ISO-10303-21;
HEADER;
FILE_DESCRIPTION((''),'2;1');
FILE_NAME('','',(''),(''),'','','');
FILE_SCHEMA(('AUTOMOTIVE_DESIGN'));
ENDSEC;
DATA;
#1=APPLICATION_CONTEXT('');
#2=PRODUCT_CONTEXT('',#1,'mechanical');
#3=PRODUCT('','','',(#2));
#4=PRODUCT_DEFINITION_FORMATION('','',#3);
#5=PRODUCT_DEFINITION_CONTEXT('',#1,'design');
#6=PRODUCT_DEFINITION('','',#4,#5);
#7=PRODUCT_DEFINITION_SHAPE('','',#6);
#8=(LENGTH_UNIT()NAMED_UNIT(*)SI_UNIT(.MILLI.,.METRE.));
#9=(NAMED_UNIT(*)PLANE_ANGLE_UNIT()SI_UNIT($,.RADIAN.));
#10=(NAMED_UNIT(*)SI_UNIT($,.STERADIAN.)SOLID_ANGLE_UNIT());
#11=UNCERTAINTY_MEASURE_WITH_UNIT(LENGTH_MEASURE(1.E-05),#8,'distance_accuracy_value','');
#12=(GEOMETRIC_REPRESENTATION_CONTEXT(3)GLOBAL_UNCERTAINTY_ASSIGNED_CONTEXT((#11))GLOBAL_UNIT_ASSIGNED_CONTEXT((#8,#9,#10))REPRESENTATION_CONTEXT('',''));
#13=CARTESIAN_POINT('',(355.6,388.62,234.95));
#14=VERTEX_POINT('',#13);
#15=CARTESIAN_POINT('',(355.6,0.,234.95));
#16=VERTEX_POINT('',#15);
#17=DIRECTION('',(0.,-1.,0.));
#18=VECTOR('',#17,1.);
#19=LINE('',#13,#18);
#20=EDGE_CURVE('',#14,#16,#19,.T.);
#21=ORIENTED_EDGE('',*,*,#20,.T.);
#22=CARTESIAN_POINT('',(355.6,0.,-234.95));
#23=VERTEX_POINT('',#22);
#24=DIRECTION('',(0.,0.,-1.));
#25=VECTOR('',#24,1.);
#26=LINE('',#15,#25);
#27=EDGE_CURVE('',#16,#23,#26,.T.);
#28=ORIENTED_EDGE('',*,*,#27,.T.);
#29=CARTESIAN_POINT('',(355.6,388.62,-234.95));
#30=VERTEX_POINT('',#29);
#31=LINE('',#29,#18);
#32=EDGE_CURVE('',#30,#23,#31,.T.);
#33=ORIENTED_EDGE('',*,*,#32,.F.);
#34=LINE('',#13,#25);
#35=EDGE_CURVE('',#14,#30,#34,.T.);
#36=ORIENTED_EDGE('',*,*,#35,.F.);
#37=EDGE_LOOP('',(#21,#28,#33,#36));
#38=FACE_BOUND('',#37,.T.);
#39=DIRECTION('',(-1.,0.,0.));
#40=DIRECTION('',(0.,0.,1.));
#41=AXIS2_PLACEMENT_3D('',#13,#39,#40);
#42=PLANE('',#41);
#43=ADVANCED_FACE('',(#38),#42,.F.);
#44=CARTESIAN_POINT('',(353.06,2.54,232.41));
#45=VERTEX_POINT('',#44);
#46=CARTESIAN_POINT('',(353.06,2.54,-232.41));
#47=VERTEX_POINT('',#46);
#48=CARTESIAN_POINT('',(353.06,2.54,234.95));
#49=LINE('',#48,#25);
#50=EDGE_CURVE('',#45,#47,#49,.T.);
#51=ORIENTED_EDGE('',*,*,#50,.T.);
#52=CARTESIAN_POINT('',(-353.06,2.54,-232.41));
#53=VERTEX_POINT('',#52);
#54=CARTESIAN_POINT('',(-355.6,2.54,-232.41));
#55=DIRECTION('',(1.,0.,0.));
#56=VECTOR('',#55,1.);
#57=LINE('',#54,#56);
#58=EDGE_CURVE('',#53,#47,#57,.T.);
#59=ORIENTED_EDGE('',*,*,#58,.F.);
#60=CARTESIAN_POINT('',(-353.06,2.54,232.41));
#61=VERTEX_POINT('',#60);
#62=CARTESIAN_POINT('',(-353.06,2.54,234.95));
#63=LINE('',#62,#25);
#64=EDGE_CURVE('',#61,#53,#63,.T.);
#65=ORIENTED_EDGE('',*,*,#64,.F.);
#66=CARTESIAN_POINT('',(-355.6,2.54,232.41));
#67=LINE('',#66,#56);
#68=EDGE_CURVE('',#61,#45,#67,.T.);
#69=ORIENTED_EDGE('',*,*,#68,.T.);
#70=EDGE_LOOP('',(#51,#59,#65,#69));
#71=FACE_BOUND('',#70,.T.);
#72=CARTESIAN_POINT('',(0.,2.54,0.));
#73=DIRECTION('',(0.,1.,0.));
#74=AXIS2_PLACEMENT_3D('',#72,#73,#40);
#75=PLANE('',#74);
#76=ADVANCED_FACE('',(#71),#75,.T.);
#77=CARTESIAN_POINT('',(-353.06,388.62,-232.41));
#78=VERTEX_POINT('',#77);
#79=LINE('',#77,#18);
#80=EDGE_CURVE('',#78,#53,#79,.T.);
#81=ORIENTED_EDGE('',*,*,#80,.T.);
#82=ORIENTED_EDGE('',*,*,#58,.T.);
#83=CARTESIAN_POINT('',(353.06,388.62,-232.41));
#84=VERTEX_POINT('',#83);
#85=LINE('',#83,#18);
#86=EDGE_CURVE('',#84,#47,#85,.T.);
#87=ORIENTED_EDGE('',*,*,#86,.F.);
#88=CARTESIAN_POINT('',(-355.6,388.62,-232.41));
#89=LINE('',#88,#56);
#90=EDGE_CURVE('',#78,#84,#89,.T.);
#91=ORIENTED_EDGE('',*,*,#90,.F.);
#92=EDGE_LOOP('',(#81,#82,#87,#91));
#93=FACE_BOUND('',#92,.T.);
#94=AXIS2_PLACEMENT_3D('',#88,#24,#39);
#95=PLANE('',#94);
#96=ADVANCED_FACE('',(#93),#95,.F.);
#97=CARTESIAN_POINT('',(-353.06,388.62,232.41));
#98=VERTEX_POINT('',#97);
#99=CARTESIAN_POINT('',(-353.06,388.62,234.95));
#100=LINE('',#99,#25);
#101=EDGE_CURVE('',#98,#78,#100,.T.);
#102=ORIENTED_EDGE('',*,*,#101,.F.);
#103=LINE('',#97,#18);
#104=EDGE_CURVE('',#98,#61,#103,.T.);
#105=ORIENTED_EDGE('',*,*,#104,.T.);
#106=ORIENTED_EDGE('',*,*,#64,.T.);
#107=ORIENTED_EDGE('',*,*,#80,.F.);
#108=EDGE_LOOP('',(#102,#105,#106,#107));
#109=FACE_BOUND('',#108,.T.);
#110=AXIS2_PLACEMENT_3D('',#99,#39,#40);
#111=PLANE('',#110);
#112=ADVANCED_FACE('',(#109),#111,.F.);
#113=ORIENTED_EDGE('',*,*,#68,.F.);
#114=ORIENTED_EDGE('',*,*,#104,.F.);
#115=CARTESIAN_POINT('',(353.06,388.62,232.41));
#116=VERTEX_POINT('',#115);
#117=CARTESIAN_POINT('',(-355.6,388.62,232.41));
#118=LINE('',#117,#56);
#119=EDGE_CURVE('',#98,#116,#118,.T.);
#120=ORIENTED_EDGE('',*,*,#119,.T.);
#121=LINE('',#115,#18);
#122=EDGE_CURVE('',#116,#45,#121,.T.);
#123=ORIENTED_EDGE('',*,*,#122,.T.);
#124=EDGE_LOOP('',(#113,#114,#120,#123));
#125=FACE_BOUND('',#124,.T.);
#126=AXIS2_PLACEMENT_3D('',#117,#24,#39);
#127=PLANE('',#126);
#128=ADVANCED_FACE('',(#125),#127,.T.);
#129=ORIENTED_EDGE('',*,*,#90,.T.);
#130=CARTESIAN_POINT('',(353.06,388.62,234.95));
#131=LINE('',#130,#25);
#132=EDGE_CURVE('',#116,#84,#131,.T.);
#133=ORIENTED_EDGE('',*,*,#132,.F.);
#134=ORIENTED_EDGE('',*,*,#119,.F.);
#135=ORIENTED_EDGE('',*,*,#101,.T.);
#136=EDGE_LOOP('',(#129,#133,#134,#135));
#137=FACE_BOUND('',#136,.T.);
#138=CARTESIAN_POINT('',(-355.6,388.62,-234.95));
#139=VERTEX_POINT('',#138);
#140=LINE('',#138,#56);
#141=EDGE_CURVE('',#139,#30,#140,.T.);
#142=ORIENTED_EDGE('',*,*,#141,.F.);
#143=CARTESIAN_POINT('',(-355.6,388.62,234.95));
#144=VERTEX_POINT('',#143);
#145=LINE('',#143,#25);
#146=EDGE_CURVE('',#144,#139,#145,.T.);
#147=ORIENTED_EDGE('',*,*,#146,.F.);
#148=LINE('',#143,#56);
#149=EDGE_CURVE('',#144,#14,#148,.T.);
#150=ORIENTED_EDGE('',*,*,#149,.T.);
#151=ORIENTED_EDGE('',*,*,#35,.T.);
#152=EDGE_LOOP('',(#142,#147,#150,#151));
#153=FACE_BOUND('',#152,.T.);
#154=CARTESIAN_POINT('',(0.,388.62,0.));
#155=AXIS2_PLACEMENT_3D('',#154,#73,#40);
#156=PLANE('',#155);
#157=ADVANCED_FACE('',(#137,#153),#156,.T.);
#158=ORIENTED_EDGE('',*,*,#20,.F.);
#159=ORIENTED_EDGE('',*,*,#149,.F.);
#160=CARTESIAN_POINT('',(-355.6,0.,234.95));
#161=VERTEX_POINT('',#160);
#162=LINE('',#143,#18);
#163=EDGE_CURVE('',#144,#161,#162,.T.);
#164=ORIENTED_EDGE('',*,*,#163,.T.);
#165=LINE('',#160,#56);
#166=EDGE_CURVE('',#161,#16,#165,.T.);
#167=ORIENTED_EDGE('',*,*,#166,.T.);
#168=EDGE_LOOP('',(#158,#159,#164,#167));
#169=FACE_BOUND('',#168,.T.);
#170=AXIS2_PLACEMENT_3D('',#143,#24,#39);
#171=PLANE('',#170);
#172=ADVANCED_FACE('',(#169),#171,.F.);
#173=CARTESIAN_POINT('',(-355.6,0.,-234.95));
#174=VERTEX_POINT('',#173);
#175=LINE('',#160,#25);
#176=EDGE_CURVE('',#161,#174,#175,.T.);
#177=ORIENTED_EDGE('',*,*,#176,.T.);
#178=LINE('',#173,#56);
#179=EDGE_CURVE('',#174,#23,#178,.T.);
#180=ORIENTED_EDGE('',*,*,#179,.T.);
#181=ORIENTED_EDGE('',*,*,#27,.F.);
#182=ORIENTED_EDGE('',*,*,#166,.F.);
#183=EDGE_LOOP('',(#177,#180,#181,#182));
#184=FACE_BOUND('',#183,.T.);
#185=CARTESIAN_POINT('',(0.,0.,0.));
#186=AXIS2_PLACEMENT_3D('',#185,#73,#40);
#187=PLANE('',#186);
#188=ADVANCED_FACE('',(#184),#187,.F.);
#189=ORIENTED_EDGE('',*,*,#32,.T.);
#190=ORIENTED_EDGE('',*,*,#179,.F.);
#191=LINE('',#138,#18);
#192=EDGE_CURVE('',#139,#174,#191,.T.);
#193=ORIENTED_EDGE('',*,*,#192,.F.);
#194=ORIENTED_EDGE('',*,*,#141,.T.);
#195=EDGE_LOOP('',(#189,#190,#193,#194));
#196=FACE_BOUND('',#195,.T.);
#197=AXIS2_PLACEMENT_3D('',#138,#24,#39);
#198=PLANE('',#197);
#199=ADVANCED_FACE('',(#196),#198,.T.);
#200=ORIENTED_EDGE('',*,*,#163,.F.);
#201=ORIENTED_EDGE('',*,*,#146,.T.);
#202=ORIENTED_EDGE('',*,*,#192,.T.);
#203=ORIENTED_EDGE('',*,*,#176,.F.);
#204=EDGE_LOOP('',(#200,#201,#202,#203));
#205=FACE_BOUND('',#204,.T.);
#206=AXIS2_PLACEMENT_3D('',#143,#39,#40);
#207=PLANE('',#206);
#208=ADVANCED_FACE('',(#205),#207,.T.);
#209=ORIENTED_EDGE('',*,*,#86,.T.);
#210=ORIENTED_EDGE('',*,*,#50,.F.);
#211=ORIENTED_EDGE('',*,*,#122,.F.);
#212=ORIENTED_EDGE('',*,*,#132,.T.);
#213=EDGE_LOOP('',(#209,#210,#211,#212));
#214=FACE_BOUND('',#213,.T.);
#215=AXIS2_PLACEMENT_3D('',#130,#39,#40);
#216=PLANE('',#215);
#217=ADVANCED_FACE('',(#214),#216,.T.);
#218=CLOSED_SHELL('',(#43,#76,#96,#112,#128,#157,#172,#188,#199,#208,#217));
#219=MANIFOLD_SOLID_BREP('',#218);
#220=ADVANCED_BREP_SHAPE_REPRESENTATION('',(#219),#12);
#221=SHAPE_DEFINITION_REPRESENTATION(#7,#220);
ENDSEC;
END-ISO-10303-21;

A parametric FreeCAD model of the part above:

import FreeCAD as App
import Part
import Sketcher
from FreeCAD import Vector
Q = App.Units.Quantity


def faces_at(feature, points):
    """Names of the faces that lie closest to the given points."""
    faces = feature.Shape.Faces
    near = lambda p: min(range(len(faces)), key=lambda i: faces[i].distToShape(Part.Vertex(*p))[0])
    return sorted({f"Face{near(p) + 1}" for p in points})


def add_polygon(sketch, points):
    """Adds a closed chain of lines whose ends are joined by coincident constraints."""
    first, n = sketch.GeometryCount, len(points)
    for a, b in zip(points, points[1:] + points[:1]):
        sketch.addGeometry(Part.LineSegment(App.Vector(*a, 0), App.Vector(*b, 0)), False)
    for i in range(n):
        sketch.addConstraint(Sketcher.Constraint("Coincident", first + i, 2, first + (i + 1) % n, 1))

doc = App.newDocument("Part")
body = doc.addObject("PartDesign::Body", "Body")

# Sketch on XZ plane
sketch1 = body.newObject("Sketcher::SketchObject", "Sketch")
sketch1.AttachmentSupport = (doc.getObject("XZ_Plane"), [""])
sketch1.MapMode = "FlatFace"
add_polygon(sketch1, [(-356, -235), (-356, 235), (356, 235), (356, -235)])  # lines 0-3
sketch1.addConstraint(Sketcher.Constraint("Vertical", 0))
sketch1.addConstraint(Sketcher.Constraint("Horizontal", 1))
sketch1.addConstraint(Sketcher.Constraint("Vertical", 2))
sketch1.addConstraint(Sketcher.Constraint("Horizontal", 3))
sketch1.addConstraint(Sketcher.Constraint("Symmetric", 0, 2, 2, 2, -1, 1))
sketch1.addConstraint(Sketcher.Constraint("DistanceX", 1, 1, 1, 2, Q("28 in")))
sketch1.addConstraint(Sketcher.Constraint("DistanceY", 0, 1, 0, 2, Q("18.5 in")))
pad1 = body.newObject("PartDesign::Pad", "Pad")
pad1.Profile = sketch1
pad1.Length = Q("15.3 in")
pad1.Reversed = True
doc.recompute()

thickness = body.newObject("PartDesign::Thickness", "Thickness")
thickness.Base = (pad1, faces_at(pad1, [(0, 388.62, 0)]))
thickness.Value = Q("0.1 in")
thickness.Reversed = True
thickness.Join = "Intersection"

doc.recompute()
